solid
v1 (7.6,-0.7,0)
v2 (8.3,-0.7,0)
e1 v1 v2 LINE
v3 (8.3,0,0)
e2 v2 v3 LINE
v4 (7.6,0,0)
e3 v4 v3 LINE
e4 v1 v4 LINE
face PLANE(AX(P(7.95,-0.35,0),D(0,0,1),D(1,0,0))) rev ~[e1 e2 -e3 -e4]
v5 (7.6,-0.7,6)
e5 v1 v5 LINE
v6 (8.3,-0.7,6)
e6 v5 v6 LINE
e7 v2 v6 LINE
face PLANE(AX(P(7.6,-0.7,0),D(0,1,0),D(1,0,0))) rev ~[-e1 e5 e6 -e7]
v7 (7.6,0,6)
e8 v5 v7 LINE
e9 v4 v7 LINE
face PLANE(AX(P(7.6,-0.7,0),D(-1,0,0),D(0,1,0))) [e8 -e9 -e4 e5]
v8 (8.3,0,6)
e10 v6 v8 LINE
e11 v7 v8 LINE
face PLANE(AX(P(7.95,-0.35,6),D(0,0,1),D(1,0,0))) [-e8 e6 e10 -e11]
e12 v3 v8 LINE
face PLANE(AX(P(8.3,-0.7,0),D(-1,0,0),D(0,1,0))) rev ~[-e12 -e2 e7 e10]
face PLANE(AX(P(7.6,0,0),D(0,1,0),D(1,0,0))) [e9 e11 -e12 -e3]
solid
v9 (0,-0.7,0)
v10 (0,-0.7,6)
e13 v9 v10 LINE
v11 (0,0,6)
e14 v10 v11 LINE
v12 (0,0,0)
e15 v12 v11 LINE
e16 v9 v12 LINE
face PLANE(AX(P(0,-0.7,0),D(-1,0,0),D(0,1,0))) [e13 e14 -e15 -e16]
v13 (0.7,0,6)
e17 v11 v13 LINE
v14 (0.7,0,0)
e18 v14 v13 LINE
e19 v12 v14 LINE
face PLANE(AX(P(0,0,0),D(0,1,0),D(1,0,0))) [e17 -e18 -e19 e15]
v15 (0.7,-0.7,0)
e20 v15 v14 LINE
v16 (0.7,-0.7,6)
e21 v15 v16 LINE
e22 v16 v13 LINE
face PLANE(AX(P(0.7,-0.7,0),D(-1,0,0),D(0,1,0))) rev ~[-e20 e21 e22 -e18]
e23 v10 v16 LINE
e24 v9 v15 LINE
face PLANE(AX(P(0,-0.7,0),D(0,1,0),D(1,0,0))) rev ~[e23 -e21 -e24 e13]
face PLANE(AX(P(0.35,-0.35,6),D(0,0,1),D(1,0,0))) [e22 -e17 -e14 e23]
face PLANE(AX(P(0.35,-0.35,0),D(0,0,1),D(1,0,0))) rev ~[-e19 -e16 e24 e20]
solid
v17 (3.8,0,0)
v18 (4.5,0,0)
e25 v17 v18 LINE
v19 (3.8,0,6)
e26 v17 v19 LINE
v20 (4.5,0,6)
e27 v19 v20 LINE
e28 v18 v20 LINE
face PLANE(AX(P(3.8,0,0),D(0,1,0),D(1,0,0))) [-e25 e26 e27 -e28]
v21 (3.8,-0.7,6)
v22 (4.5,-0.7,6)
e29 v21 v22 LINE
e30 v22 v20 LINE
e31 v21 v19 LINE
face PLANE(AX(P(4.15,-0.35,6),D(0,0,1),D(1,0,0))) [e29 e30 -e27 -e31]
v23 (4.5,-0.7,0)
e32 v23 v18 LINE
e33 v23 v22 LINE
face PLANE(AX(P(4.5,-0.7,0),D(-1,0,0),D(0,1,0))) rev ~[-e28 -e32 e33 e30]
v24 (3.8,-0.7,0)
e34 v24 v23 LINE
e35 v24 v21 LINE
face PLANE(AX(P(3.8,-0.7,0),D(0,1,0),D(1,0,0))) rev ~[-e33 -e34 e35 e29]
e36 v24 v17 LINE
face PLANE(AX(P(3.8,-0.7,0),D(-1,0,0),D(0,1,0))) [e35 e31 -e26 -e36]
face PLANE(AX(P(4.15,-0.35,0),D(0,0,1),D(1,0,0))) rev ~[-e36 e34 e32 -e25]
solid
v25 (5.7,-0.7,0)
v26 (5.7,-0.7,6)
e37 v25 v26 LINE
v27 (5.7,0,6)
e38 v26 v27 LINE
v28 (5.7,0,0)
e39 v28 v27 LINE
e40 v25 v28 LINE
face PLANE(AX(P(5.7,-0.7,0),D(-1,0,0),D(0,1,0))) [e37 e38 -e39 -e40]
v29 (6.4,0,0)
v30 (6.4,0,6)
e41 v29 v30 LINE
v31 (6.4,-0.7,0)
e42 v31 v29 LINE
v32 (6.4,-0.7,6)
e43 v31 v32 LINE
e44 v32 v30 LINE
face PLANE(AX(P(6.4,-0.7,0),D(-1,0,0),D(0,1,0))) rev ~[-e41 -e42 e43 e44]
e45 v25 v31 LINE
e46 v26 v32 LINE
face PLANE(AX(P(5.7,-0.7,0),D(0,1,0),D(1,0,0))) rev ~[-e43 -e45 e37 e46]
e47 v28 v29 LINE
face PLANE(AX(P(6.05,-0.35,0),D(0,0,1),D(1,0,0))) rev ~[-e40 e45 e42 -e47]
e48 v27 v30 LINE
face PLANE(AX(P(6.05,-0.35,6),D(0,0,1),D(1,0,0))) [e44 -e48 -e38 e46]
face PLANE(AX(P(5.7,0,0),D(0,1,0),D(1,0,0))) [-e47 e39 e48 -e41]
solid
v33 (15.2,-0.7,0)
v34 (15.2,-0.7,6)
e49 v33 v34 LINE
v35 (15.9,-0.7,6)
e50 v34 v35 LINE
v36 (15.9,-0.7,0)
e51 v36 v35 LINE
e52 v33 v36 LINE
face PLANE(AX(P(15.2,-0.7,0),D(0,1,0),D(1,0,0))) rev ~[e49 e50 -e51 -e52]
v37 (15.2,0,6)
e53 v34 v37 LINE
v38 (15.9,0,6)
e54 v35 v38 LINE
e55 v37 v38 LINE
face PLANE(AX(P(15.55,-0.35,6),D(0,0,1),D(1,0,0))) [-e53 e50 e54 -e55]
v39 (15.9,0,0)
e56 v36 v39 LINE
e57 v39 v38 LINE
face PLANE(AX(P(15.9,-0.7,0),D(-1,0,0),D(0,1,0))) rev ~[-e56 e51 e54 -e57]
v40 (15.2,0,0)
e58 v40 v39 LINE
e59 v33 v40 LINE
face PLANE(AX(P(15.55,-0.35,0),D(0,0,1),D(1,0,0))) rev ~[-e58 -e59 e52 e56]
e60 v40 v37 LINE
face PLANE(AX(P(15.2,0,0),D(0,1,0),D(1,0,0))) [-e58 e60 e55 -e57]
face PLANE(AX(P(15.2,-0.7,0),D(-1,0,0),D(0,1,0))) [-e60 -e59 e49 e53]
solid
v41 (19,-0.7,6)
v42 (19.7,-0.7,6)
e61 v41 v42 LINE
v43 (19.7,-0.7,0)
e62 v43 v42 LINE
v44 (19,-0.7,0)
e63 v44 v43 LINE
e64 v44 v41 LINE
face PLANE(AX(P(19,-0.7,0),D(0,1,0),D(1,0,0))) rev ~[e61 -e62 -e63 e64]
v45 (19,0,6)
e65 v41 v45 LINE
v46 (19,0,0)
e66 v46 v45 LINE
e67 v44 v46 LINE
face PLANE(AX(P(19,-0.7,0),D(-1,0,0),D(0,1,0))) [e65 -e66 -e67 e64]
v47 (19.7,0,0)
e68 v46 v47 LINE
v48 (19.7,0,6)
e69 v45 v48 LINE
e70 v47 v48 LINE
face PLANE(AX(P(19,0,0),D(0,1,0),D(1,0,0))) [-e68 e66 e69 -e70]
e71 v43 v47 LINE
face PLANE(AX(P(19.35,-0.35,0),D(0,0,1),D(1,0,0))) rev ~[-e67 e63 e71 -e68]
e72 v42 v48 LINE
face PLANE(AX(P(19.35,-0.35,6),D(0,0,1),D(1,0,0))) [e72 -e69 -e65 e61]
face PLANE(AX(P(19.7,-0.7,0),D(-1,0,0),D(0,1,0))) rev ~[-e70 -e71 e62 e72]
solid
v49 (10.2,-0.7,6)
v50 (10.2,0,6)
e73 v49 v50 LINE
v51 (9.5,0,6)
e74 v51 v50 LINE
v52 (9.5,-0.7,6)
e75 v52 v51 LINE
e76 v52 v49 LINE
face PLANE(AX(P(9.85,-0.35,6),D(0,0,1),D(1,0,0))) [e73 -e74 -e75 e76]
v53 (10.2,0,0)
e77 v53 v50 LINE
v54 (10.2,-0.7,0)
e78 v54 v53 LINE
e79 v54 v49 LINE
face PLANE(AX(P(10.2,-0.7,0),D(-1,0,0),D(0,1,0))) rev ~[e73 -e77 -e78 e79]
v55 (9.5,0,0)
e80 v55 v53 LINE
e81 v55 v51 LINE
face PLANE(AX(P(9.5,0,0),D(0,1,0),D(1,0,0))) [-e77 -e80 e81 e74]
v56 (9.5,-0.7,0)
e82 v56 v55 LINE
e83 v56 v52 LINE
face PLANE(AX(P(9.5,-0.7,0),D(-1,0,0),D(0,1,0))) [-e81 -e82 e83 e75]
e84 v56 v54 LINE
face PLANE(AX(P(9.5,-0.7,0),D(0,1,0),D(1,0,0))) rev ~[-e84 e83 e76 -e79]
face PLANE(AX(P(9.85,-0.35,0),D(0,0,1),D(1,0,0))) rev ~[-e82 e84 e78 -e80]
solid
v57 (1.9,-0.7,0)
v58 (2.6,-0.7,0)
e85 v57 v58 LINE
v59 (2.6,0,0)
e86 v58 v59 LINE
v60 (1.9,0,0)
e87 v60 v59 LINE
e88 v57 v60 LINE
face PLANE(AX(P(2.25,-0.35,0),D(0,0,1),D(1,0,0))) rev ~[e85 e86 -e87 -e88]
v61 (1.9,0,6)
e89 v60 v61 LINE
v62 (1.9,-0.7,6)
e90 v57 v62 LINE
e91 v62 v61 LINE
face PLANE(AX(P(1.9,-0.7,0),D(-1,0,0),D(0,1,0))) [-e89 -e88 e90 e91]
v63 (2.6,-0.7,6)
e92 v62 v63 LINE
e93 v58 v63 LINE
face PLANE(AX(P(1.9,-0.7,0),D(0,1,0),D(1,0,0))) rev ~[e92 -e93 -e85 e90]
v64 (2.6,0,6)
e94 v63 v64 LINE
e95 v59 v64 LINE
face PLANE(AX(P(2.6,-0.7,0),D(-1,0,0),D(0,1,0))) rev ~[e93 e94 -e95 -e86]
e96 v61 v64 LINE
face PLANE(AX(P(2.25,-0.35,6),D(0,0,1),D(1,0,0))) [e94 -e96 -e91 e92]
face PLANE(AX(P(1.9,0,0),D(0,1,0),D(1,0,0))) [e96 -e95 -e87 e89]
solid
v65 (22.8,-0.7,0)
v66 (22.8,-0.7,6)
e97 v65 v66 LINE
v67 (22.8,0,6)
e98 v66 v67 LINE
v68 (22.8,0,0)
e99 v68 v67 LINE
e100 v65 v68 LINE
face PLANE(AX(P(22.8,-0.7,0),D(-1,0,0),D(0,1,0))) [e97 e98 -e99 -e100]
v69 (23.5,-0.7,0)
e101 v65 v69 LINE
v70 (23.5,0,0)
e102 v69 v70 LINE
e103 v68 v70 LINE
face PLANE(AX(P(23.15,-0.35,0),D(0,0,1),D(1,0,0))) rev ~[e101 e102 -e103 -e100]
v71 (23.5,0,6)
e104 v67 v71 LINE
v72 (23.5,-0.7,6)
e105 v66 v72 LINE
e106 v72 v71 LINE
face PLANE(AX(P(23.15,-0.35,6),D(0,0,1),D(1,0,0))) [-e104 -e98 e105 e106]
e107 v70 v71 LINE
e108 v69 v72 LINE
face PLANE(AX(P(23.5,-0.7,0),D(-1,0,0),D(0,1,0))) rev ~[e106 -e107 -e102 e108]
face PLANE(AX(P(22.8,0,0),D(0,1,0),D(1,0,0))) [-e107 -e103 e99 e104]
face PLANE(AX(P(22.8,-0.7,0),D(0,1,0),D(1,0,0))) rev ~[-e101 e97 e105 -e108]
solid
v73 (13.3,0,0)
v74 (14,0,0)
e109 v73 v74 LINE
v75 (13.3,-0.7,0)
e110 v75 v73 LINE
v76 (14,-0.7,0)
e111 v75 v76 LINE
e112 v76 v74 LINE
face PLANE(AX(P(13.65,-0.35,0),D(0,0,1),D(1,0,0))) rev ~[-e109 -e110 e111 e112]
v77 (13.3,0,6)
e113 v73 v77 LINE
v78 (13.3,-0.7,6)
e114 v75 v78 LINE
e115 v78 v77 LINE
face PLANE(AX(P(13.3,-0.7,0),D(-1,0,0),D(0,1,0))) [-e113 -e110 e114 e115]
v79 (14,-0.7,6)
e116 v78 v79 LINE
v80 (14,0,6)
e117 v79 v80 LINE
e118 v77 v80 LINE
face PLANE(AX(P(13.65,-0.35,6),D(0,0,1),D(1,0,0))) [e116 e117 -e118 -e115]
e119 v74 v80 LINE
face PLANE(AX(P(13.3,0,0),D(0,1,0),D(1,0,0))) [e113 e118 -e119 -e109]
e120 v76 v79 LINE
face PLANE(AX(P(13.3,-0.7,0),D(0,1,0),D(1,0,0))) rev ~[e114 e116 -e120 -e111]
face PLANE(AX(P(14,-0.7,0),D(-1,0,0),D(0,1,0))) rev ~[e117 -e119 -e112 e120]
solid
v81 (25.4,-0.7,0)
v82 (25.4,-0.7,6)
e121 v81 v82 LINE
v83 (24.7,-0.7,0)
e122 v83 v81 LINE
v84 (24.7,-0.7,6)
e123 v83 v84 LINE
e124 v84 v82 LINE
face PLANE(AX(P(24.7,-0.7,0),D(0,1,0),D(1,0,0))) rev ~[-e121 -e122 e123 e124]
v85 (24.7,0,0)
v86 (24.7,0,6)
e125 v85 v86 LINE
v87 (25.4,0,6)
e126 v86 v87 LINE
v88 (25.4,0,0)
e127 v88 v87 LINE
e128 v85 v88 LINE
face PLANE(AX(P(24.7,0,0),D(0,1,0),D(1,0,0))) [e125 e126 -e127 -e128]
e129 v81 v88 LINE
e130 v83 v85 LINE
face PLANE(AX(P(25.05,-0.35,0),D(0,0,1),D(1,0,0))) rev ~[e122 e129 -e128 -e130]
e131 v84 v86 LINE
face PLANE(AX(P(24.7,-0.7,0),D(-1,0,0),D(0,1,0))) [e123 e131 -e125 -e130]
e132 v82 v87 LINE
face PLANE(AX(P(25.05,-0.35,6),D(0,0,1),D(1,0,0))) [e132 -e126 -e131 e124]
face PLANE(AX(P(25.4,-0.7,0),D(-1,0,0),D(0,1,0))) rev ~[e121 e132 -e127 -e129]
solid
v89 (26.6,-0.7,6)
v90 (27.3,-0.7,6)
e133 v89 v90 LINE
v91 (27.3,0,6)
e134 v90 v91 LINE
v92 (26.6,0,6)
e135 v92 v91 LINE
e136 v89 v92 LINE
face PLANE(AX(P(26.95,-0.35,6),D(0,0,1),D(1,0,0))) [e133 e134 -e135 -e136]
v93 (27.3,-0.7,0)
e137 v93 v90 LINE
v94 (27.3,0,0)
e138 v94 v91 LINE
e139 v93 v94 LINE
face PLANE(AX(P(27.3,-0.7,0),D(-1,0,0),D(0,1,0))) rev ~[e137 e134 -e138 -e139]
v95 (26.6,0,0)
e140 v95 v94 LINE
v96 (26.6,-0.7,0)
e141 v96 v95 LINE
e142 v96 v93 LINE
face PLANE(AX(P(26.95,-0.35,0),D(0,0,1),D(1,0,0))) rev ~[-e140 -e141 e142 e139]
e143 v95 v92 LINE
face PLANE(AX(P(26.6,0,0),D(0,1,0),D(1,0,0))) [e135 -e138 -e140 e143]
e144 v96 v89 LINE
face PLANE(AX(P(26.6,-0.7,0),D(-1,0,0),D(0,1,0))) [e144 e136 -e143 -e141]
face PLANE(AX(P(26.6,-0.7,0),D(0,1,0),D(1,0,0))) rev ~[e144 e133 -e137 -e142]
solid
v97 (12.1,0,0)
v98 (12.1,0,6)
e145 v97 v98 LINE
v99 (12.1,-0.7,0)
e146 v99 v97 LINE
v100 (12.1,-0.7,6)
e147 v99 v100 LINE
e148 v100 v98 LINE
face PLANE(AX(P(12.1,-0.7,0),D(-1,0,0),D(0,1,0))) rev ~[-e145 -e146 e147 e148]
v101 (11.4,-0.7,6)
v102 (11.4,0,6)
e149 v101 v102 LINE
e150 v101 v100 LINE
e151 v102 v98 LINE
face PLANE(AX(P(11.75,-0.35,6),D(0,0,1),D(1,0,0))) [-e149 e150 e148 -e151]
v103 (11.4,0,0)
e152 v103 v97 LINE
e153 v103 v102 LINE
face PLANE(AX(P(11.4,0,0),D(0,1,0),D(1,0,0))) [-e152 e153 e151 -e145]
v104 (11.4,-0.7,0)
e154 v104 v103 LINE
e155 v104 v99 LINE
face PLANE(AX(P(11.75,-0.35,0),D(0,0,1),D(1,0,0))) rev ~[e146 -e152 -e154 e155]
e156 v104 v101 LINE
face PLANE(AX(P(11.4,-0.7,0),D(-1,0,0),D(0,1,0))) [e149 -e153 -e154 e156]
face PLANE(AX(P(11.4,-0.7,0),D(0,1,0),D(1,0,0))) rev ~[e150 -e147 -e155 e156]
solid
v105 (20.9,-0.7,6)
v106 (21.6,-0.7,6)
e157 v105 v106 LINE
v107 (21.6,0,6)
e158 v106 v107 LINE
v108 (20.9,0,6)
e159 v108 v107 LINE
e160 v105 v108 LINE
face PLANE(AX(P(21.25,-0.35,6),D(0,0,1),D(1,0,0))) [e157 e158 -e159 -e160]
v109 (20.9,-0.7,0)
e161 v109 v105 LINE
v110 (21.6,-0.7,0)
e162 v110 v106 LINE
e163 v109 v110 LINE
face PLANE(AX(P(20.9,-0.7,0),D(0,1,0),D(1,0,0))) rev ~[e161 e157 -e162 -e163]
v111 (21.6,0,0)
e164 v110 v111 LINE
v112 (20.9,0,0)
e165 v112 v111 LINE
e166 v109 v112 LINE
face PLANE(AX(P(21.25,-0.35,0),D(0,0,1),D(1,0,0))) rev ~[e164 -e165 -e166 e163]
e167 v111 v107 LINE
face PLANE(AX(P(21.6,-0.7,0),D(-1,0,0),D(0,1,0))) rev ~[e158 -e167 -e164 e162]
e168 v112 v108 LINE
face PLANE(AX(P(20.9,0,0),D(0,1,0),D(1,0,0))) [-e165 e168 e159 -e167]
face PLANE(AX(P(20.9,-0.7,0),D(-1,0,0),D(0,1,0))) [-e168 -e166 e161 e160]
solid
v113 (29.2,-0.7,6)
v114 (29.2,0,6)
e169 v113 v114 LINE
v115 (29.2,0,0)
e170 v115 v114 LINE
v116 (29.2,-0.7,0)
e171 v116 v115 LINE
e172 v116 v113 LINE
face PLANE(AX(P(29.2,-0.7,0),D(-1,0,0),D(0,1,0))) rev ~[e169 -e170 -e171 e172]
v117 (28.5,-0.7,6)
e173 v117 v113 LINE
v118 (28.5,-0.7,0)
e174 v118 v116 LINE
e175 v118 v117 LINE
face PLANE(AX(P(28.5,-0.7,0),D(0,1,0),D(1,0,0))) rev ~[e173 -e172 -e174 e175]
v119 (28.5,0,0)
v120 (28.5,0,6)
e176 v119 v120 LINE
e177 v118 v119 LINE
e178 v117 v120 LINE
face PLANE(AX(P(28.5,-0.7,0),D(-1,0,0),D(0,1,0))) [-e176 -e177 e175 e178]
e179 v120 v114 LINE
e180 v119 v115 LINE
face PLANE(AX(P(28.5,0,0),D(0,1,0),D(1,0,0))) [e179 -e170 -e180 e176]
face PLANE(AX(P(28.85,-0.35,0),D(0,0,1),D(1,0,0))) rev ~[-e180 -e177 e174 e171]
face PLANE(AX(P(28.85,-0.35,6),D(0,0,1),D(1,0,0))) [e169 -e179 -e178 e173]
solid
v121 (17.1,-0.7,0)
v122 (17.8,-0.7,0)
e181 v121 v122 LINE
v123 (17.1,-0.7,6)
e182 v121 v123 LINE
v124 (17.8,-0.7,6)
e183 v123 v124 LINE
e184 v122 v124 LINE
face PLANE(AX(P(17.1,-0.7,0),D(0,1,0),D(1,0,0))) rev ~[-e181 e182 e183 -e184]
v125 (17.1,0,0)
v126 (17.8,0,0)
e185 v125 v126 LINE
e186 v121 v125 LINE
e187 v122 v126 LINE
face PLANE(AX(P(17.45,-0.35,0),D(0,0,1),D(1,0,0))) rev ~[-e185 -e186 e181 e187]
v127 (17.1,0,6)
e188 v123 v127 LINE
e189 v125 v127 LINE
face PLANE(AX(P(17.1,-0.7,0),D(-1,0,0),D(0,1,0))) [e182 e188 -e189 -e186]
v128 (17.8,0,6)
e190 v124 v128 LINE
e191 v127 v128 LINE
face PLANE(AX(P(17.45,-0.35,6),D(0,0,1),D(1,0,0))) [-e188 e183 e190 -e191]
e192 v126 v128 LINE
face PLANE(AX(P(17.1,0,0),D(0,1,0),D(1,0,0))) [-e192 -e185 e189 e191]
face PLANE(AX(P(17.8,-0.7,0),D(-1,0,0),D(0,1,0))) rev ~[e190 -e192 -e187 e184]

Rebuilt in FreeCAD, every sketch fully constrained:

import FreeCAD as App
import Part
import Sketcher
from FreeCAD import Vector


def add_polygon(sketch, points):
    """Adds a closed chain of lines whose ends are joined by coincident constraints."""
    first, n = sketch.GeometryCount, len(points)
    for a, b in zip(points, points[1:] + points[:1]):
        sketch.addGeometry(Part.LineSegment(App.Vector(*a, 0), App.Vector(*b, 0)), False)
    for i in range(n):
        sketch.addConstraint(Sketcher.Constraint("Coincident", first + i, 2, first + (i + 1) % n, 1))

doc = App.newDocument("Part")
params = doc.addObject("Spreadsheet::Sheet", "Params")
for row, (alias, value) in enumerate([
    ("sketch1_width", "0.7 mm"),
    ("pad1_length", "6 mm"),
], start=1):
    params.set(f"A{row}", alias)
    params.set(f"B{row}", "=" + value)
    params.setAlias(f"B{row}", alias)

body = doc.addObject("PartDesign::Body", "Body")
body.AllowCompound = True

sketch1 = doc.addObject("Sketcher::SketchObject", "Sketch")
body.addObject(sketch1)
sketch1.AttachmentSupport = (doc.XY_Plane, [""])
sketch1.MapMode = "FlatFace"
add_polygon(sketch1, [(0, 0), (0, -0.7), (0.7, -0.7), (0.7, 0)])
add_polygon(sketch1, [(1.9, 0), (1.9, -0.7), (2.6, -0.7), (2.6, 0)])
add_polygon(sketch1, [(3.8, 0), (3.8, -0.7), (4.5, -0.7), (4.5, 0)])
add_polygon(sketch1, [(5.7, 0), (5.7, -0.7), (6.4, -0.7), (6.4, 0)])
add_polygon(sketch1, [(7.6, 0), (7.6, -0.7), (8.3, -0.7), (8.3, 0)])
add_polygon(sketch1, [(9.5, 0), (9.5, -0.7), (10.2, -0.7), (10.2, 0)])
add_polygon(sketch1, [(11.4, 0), (11.4, -0.7), (12.1, -0.7), (12.1, 0)])
add_polygon(sketch1, [(13.3, 0), (13.3, -0.7), (14, -0.7), (14, 0)])
add_polygon(sketch1, [(15.2, 0), (15.2, -0.7), (15.9, -0.7), (15.9, 0)])
add_polygon(sketch1, [(17.1, 0), (17.1, -0.7), (17.8, -0.7), (17.8, 0)])
add_polygon(sketch1, [(19, 0), (19, -0.7), (19.7, -0.7), (19.7, 0)])
add_polygon(sketch1, [(20.9, 0), (20.9, -0.7), (21.6, -0.7), (21.6, 0)])
add_polygon(sketch1, [(22.8, 0), (22.8, -0.7), (23.5, -0.7), (23.5, 0)])
add_polygon(sketch1, [(24.7, 0), (24.7, -0.7), (25.4, -0.7), (25.4, 0)])
add_polygon(sketch1, [(26.6, 0), (26.6, -0.7), (27.3, -0.7), (27.3, 0)])
add_polygon(sketch1, [(28.5, 0), (28.5, -0.7), (29.2, -0.7), (29.2, 0)])
sketch1.addConstraint([
    Sketcher.Constraint("Vertical", 0),
    Sketcher.Constraint("Horizontal", 1),
    Sketcher.Constraint("Vertical", 2),
    Sketcher.Constraint("Horizontal", 3),
    Sketcher.Constraint("Vertical", 4),
    Sketcher.Constraint("Horizontal", 5),
    Sketcher.Constraint("Vertical", 6),
    Sketcher.Constraint("Horizontal", 7),
    Sketcher.Constraint("Vertical", 8),
    Sketcher.Constraint("Horizontal", 9),
    Sketcher.Constraint("Vertical", 10),
    Sketcher.Constraint("Horizontal", 11),
    Sketcher.Constraint("Vertical", 12),
    Sketcher.Constraint("Horizontal", 13),
    Sketcher.Constraint("Vertical", 14),
    Sketcher.Constraint("Horizontal", 15),
    Sketcher.Constraint("Vertical", 16),
    Sketcher.Constraint("Horizontal", 17),
    Sketcher.Constraint("Vertical", 18),
    Sketcher.Constraint("Horizontal", 19),
    Sketcher.Constraint("Vertical", 20),
    Sketcher.Constraint("Horizontal", 21),
    Sketcher.Constraint("Vertical", 22),
    Sketcher.Constraint("Horizontal", 23),
    Sketcher.Constraint("Vertical", 24),
    Sketcher.Constraint("Horizontal", 25),
    Sketcher.Constraint("Vertical", 26),
    Sketcher.Constraint("Horizontal", 27),
    Sketcher.Constraint("Vertical", 28),
    Sketcher.Constraint("Horizontal", 29),
    Sketcher.Constraint("Vertical", 30),
    Sketcher.Constraint("Horizontal", 31),
    Sketcher.Constraint("Vertical", 32),
    Sketcher.Constraint("Horizontal", 33),
    Sketcher.Constraint("Vertical", 34),
    Sketcher.Constraint("Horizontal", 35),
    Sketcher.Constraint("Vertical", 36),
    Sketcher.Constraint("Horizontal", 37),
    Sketcher.Constraint("Vertical", 38),
    Sketcher.Constraint("Horizontal", 39),
    Sketcher.Constraint("Vertical", 40),
    Sketcher.Constraint("Horizontal", 41),
    Sketcher.Constraint("Vertical", 42),
    Sketcher.Constraint("Horizontal", 43),
    Sketcher.Constraint("Vertical", 44),
    Sketcher.Constraint("Horizontal", 45),
    Sketcher.Constraint("Vertical", 46),
    Sketcher.Constraint("Horizontal", 47),
    Sketcher.Constraint("Vertical", 48),
    Sketcher.Constraint("Horizontal", 49),
    Sketcher.Constraint("Vertical", 50),
    Sketcher.Constraint("Horizontal", 51),
    Sketcher.Constraint("Vertical", 52),
    Sketcher.Constraint("Horizontal", 53),
    Sketcher.Constraint("Vertical", 54),
    Sketcher.Constraint("Horizontal", 55),
    Sketcher.Constraint("Vertical", 56),
    Sketcher.Constraint("Horizontal", 57),
    Sketcher.Constraint("Vertical", 58),
    Sketcher.Constraint("Horizontal", 59),
    Sketcher.Constraint("Vertical", 60),
    Sketcher.Constraint("Horizontal", 61),
    Sketcher.Constraint("Vertical", 62),
    Sketcher.Constraint("Horizontal", 63),
    Sketcher.Constraint("Coincident", 3, 2, -1, 1),
    Sketcher.Constraint("PointOnObject", 6, 2, -1),
    Sketcher.Constraint("PointOnObject", 10, 2, -1),
    Sketcher.Constraint("PointOnObject", 14, 2, -1),
    Sketcher.Constraint("PointOnObject", 18, 2, -1),
    Sketcher.Constraint("PointOnObject", 22, 2, -1),
    Sketcher.Constraint("PointOnObject", 26, 2, -1),
    Sketcher.Constraint("PointOnObject", 30, 2, -1),
    Sketcher.Constraint("PointOnObject", 34, 2, -1),
    Sketcher.Constraint("PointOnObject", 38, 2, -1),
    Sketcher.Constraint("PointOnObject", 42, 2, -1),
    Sketcher.Constraint("PointOnObject", 46, 2, -1),
    Sketcher.Constraint("PointOnObject", 50, 2, -1),
    Sketcher.Constraint("PointOnObject", 54, 2, -1),
    Sketcher.Constraint("PointOnObject", 58, 2, -1),
    Sketcher.Constraint("PointOnObject", 62, 2, -1),
    Sketcher.Constraint("Horizontal", 1, 2, 4, 2),
    Sketcher.Constraint("Horizontal", 5, 2, 8, 2),
    Sketcher.Constraint("Horizontal", 9, 2, 12, 2),
    Sketcher.Constraint("Horizontal", 13, 2, 16, 2),
    Sketcher.Constraint("Horizontal", 17, 2, 20, 2),
    Sketcher.Constraint("Horizontal", 21, 2, 24, 2),
    Sketcher.Constraint("Horizontal", 25, 2, 28, 2),
    Sketcher.Constraint("Horizontal", 29, 2, 32, 2),
    Sketcher.Constraint("Horizontal", 33, 2, 36, 2),
    Sketcher.Constraint("Horizontal", 37, 2, 40, 2),
    Sketcher.Constraint("Horizontal", 41, 2, 44, 2),
    Sketcher.Constraint("Horizontal", 45, 2, 48, 2),
    Sketcher.Constraint("Horizontal", 49, 2, 52, 2),
    Sketcher.Constraint("Horizontal", 53, 2, 56, 2),
    Sketcher.Constraint("Horizontal", 57, 2, 60, 2),
    Sketcher.Constraint("Equal", 3, 5),
    Sketcher.Constraint("Equal", 7, 9),
    Sketcher.Constraint("Equal", 11, 13),
    Sketcher.Constraint("Equal", 15, 17),
    Sketcher.Constraint("Equal", 19, 21),
    Sketcher.Constraint("Equal", 23, 25),
    Sketcher.Constraint("Equal", 27, 29),
    Sketcher.Constraint("Equal", 31, 33),
    Sketcher.Constraint("Equal", 35, 37),
    Sketcher.Constraint("Equal", 39, 41),
    Sketcher.Constraint("Equal", 43, 45),
    Sketcher.Constraint("Equal", 47, 49),
    Sketcher.Constraint("Equal", 51, 53),
    Sketcher.Constraint("Equal", 55, 57),
    Sketcher.Constraint("Equal", 59, 61),
    Sketcher.Constraint("Equal", 63, 0),
    Sketcher.Constraint("DistanceX", 1, 1, 1, 2, 0.7),
    Sketcher.Constraint("DistanceX", -1, 1, 29, 2, 14.0),
    Sketcher.Constraint("DistanceX", -1, 1, 40, 2, 19.0),
    Sketcher.Constraint("DistanceX", -1, 1, 4, 2, 1.9),
    Sketcher.Constraint("DistanceX", -1, 1, 8, 2, 3.8),
    Sketcher.Constraint("DistanceX", -1, 1, 12, 2, 5.7),
    Sketcher.Constraint("DistanceX", -1, 1, 16, 2, 7.6),
    Sketcher.Constraint("DistanceX", -1, 1, 20, 2, 9.5),
    Sketcher.Constraint("DistanceX", -1, 1, 24, 2, 11.4),
    Sketcher.Constraint("DistanceX", -1, 1, 32, 2, 15.2),
    Sketcher.Constraint("DistanceX", -1, 1, 36, 2, 17.1),
    Sketcher.Constraint("DistanceX", -1, 1, 44, 2, 20.9),
    Sketcher.Constraint("DistanceX", -1, 1, 48, 2, 22.8),
    Sketcher.Constraint("DistanceX", -1, 1, 52, 2, 24.7),
    Sketcher.Constraint("DistanceX", -1, 1, 56, 2, 26.6),
    Sketcher.Constraint("DistanceX", -1, 1, 60, 2, 28.5),
])
sketch1.setExpression("Constraints[175]", "Params.sketch1_width")
pad1 = doc.addObject("PartDesign::Pad", "Pad")
body.addObject(pad1)
pad1.Profile = sketch1
pad1.setExpression("Length", "Params.pad1_length")

doc.recompute()
